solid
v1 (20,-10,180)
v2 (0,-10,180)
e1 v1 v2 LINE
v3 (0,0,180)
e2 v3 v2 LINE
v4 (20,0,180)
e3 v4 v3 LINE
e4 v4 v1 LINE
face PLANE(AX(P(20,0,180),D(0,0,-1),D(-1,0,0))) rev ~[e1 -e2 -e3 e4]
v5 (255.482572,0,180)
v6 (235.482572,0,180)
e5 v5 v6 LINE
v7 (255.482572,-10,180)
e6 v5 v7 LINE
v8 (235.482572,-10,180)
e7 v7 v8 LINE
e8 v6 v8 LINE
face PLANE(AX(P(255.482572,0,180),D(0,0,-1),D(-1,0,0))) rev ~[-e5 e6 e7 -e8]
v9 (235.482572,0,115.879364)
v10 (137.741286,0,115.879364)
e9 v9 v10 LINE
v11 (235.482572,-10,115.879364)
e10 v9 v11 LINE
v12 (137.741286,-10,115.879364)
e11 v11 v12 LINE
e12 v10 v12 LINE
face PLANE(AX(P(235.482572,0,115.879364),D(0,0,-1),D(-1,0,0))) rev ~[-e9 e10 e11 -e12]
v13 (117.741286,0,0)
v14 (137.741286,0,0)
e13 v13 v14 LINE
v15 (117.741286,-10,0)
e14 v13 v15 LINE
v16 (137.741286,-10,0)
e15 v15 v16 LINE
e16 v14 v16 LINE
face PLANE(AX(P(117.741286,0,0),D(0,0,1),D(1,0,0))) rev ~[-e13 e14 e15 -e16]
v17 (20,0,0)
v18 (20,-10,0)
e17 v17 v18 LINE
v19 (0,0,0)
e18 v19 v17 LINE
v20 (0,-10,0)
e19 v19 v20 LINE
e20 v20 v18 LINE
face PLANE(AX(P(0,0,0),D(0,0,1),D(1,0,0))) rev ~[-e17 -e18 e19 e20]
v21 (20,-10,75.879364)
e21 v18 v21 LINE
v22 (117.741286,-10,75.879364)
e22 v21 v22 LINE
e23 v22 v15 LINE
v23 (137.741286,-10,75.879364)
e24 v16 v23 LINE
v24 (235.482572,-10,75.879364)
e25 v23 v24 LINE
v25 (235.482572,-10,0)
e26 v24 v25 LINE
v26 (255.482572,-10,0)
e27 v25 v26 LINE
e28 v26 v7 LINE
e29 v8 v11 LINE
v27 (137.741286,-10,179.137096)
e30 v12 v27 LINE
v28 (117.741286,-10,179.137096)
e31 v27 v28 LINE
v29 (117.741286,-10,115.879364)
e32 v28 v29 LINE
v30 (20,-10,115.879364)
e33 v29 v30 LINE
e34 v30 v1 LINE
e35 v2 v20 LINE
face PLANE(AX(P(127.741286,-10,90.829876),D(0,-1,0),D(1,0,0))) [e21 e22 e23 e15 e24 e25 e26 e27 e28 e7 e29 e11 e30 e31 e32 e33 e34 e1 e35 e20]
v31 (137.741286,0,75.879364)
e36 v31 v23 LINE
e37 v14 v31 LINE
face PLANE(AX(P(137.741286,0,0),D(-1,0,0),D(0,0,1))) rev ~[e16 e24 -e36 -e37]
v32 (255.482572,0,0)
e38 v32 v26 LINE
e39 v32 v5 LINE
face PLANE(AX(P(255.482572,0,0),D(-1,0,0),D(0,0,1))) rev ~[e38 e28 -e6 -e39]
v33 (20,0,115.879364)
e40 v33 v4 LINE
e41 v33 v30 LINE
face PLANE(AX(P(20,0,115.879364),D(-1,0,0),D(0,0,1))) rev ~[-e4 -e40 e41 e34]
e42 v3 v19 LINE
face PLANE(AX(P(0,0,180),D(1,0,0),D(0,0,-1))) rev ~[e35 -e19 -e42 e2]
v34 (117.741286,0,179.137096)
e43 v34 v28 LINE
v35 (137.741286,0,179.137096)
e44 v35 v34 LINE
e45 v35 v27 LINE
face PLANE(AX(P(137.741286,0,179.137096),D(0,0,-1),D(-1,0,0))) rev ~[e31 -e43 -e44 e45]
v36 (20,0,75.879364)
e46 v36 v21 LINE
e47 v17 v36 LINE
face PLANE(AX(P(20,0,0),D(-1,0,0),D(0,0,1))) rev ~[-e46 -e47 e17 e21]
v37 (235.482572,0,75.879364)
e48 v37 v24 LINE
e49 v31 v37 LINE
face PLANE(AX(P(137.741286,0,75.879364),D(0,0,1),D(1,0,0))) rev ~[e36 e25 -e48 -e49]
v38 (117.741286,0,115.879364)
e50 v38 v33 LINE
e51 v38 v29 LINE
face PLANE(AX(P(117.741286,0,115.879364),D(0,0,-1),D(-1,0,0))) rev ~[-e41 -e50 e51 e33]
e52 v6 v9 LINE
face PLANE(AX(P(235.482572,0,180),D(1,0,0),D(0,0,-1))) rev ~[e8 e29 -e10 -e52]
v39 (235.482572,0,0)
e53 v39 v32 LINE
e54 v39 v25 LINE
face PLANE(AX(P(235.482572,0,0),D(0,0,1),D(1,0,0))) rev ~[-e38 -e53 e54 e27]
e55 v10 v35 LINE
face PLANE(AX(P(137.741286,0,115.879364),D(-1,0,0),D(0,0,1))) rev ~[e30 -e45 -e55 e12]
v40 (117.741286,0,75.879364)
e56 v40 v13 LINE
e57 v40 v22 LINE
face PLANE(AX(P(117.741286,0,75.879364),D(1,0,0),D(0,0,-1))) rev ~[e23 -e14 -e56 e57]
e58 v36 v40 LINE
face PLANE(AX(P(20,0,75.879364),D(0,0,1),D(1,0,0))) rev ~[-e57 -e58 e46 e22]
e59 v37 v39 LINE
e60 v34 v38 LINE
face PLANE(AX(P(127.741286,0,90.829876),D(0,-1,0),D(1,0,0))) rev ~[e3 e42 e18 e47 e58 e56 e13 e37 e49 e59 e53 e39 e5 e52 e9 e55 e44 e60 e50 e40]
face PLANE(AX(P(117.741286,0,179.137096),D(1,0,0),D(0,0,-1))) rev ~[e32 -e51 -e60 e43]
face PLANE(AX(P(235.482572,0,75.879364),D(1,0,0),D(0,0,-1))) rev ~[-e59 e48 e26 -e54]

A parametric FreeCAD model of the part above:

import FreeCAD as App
import Part
import Sketcher

V = App.Vector
Q = App.Units.Quantity


def add_polygon(sketch, points):
    """Adds a closed chain of lines whose ends are joined by coincident constraints."""
    first, n = sketch.GeometryCount, len(points)
    for a, b in zip(points, points[1:] + points[:1]):
        sketch.addGeometry(Part.LineSegment(App.Vector(*a, 0), App.Vector(*b, 0)), False)
    for i in range(n):
        sketch.addConstraint(Sketcher.Constraint("Coincident", first + i, 2, first + (i + 1) % n, 1))

doc = App.newDocument("Part")
body = doc.addObject("PartDesign::Body", "Body")

sketch1 = body.newObject("Sketcher::SketchObject", "Sketch")
sketch1.AttachmentSupport = (doc.getObject("XZ_Plane"), [""])
sketch1.MapMode = "FlatFace"
add_polygon(sketch1, [(0, 0), (20, 0), (20, 75.879364), (117.741286, 75.879364), (117.741286, 0), (137.741286, 0), (137.741286, 75.879364), (235.482572, 75.879364), (235.482572, 0), (255.482572, 0), (255.482572, 180), (235.482572, 180), (235.482572, 115.879364), (137.741286, 115.879364), (137.741286, 179.137096), (117.741286, 179.137096), (117.741286, 115.879364), (20, 115.879364), (20, 180), (0, 180)])
sketch1.addConstraint([
    Sketcher.Constraint("Horizontal", 0),
    Sketcher.Constraint("Vertical", 1),
    Sketcher.Constraint("Horizontal", 2),
    Sketcher.Constraint("Vertical", 3),
    Sketcher.Constraint("Horizontal", 4),
    Sketcher.Constraint("Vertical", 5),
    Sketcher.Constraint("Horizontal", 6),
    Sketcher.Constraint("Vertical", 7),
    Sketcher.Constraint("Horizontal", 8),
    Sketcher.Constraint("Vertical", 9),
    Sketcher.Constraint("Horizontal", 10),
    Sketcher.Constraint("Vertical", 11),
    Sketcher.Constraint("Horizontal", 12),
    Sketcher.Constraint("Vertical", 13),
    Sketcher.Constraint("Horizontal", 14),
    Sketcher.Constraint("Vertical", 15),
    Sketcher.Constraint("Horizontal", 16),
    Sketcher.Constraint("Vertical", 17),
    Sketcher.Constraint("Horizontal", 18),
    Sketcher.Constraint("Vertical", 19),
    Sketcher.Constraint("Coincident", 19, 2, -1, 1),
    Sketcher.Constraint("PointOnObject", 3, 2, -1),
    Sketcher.Constraint("PointOnObject", 7, 2, -1),
    Sketcher.Constraint("Horizontal", 2, 2, 5, 2),
    Sketcher.Constraint("Horizontal", 12, 2, 15, 2),
    Sketcher.Constraint("Horizontal", 10, 2, 17, 2),
    Sketcher.Constraint("Vertical", 7, 2, 10, 2),
    Sketcher.Constraint("Vertical", 5, 2, 12, 2),
    Sketcher.Constraint("Vertical", 3, 2, 14, 2),
    Sketcher.Constraint("Vertical", 1, 2, 16, 2),
    Sketcher.Constraint("Equal", 0, 4),
    Sketcher.Constraint("Equal", 2, 6),
    Sketcher.Constraint("Equal", 4, 8),
    Sketcher.Constraint("DistanceX", 0, 1, 0, 2, Q("20 mm")),
    Sketcher.Constraint("DistanceY", 9, 1, 9, 2, Q("180 mm")),
    Sketcher.Constraint("DistanceY", 6, 2, 11, 2, Q("40 mm")),
    Sketcher.Constraint("DistanceX", 2, 1, 2, 2, Q("97.741286 mm")),
    Sketcher.Constraint("DistanceY", 1, 1, 1, 2, Q("75.879364 mm")),
    Sketcher.Constraint("DistanceY", 13, 1, 13, 2, Q("63.257732 mm")),
])
pad1 = body.newObject("PartDesign::Pad", "Pad")
pad1.Profile = sketch1
pad1.Length = 10

doc.recompute()
